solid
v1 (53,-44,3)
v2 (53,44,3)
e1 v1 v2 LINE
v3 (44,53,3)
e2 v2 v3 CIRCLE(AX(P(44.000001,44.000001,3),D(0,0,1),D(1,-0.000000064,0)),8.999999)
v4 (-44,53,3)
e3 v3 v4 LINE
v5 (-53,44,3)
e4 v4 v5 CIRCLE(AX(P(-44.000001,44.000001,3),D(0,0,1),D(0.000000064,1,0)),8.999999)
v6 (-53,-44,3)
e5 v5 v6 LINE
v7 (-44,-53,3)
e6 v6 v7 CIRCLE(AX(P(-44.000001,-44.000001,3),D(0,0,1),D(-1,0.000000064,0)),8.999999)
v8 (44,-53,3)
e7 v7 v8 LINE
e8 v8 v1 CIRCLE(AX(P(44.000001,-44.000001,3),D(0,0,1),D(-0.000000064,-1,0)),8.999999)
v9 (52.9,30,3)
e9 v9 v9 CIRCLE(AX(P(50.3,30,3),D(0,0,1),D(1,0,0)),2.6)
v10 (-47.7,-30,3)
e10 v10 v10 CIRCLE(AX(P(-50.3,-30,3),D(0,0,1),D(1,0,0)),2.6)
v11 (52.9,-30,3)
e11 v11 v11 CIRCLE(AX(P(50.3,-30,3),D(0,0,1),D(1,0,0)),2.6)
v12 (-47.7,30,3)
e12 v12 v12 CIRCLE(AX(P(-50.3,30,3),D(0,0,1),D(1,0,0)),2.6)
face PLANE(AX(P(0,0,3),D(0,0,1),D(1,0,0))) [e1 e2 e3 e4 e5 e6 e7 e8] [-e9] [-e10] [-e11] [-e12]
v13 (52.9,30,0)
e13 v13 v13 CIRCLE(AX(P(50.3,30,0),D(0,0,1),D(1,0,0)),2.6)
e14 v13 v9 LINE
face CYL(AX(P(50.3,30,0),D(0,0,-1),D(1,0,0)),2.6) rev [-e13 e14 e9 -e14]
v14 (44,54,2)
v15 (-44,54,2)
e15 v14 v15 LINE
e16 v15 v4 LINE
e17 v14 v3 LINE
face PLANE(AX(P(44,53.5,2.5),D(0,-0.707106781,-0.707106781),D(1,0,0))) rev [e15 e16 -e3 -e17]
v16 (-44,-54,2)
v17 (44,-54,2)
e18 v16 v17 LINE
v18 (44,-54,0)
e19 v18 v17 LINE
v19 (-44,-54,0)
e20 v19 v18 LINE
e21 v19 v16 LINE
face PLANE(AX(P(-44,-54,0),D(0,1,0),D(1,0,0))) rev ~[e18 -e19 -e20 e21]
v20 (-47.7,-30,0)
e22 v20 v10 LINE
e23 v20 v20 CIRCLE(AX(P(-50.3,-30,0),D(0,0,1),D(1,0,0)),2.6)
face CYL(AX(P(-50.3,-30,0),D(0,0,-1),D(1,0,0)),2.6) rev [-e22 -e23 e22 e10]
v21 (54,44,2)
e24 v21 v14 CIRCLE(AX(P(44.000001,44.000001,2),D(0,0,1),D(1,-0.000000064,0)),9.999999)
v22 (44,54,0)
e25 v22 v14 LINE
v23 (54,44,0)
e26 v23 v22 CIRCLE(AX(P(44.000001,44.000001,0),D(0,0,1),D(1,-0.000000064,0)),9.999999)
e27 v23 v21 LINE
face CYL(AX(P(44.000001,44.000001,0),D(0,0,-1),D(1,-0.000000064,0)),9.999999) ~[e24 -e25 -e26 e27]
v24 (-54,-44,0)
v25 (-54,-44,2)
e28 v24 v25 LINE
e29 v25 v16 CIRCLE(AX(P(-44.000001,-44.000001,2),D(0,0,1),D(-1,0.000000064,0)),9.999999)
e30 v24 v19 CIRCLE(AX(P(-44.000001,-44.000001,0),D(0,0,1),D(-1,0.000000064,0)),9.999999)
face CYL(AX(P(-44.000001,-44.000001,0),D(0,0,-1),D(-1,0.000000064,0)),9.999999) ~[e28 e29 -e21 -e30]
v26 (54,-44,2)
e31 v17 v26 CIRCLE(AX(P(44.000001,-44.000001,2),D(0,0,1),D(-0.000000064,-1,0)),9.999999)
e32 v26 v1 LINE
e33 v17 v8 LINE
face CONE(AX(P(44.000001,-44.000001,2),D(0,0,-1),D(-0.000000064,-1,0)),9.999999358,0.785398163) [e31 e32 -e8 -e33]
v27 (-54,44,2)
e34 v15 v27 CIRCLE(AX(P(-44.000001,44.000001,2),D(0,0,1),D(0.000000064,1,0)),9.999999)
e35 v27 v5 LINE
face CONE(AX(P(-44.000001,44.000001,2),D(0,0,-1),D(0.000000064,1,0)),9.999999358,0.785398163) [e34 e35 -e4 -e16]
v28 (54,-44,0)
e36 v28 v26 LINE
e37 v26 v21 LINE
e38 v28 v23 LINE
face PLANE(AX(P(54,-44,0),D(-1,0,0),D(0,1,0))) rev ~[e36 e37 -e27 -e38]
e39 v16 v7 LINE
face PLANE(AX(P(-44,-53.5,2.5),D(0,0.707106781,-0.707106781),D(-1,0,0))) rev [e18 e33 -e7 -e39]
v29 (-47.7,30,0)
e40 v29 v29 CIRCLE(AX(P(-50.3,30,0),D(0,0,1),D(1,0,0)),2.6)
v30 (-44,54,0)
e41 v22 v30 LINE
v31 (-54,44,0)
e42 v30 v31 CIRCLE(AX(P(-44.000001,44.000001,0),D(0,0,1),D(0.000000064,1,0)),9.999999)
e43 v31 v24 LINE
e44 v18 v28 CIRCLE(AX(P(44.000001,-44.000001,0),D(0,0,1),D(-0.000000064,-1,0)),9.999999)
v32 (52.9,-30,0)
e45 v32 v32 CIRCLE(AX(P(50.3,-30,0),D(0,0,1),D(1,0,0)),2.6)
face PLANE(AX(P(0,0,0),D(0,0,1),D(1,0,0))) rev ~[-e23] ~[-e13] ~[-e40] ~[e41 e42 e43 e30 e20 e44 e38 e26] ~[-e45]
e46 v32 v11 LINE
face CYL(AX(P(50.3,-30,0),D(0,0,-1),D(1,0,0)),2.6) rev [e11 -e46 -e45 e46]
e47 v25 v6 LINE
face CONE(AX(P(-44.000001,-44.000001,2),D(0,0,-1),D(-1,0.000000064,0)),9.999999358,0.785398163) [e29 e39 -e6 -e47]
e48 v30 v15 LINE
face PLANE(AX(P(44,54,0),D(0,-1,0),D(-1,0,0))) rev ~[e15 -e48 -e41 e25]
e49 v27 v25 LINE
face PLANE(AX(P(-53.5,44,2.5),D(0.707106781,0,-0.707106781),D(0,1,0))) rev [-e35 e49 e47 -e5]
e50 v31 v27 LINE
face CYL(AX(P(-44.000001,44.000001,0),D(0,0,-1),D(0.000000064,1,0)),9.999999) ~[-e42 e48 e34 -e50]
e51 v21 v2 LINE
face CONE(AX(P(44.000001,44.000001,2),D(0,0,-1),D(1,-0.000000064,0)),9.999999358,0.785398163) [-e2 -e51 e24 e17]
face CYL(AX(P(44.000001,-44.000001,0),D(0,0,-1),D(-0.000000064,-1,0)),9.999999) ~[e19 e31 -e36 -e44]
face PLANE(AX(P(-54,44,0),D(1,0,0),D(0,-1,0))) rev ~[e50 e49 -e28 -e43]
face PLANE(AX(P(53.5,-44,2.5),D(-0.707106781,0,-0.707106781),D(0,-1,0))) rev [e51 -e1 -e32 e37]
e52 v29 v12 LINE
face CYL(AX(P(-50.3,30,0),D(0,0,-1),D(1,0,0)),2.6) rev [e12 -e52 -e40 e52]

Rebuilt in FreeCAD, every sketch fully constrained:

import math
import FreeCAD as App
import Part
import Sketcher


def edges_at(feature, points):
    """Names of the edges that pass closest to the given points."""
    edges = feature.Shape.Edges
    near = lambda p: min(range(len(edges)), key=lambda i: edges[i].distToShape(Part.Vertex(*p))[0])
    return sorted({f"Edge{near(p) + 1}" for p in points})

doc = App.newDocument("Part")
params = doc.addObject("Spreadsheet::Sheet", "Params")
for row, (alias, value) in enumerate([
    ("sketch1_radius", "9.999999 mm"),
    ("sketch1_diameter", "5.2 mm"),
    ("sketch1_width", "88 mm"),
    ("pad1_length", "3 mm"),
    ("chamfer_size", "1 mm"),
], start=1):
    params.set(f"A{row}", alias)
    params.set(f"B{row}", "=" + value)
    params.setAlias(f"B{row}", alias)

body = doc.addObject("PartDesign::Body", "Body")

# Sketch on XY plane
sketch1 = body.newObject("Sketcher::SketchObject", "Sketch")
sketch1.AttachmentSupport = (doc.getObject("XY_Plane"), [""])
sketch1.MapMode = "FlatFace"
sketch1.addGeometry([
    Part.LineSegment(App.Vector(-44, -54, 0), App.Vector(44, -54, 0)),  # 0
    Part.ArcOfCircle(Part.Circle(App.Vector(44.000001, -44.000001, 0), App.Vector(0, 0, 1), 9.999999), math.radians(-90.000004), math.radians(0.000004)),  # 1
    Part.LineSegment(App.Vector(54, -44, 0), App.Vector(54, 44, 0)),  # 2
    Part.ArcOfCircle(Part.Circle(App.Vector(44.000001, 44.000001, 0), App.Vector(0, 0, 1), 9.999999), math.radians(-0.000004), math.radians(90.000004)),  # 3
    Part.LineSegment(App.Vector(44, 54, 0), App.Vector(-44, 54, 0)),  # 4
    Part.ArcOfCircle(Part.Circle(App.Vector(-44.000001, 44.000001, 0), App.Vector(0, 0, 1), 9.999999), math.radians(89.999996), math.radians(180.000004)),  # 5
    Part.LineSegment(App.Vector(-54, 44, 0), App.Vector(-54, -44, 0)),  # 6
    Part.ArcOfCircle(Part.Circle(App.Vector(-44.000001, -44.000001, 0), App.Vector(0, 0, 1), 9.999999), math.radians(179.999996), math.radians(270.000004)),  # 7
    Part.Circle(App.Vector(-50.3, -30, 0), App.Vector(0, 0, 1), 2.6),  # 8
    Part.Circle(App.Vector(50.3, -30, 0), App.Vector(0, 0, 1), 2.6),  # 9
    Part.Circle(App.Vector(-50.3, 30, 0), App.Vector(0, 0, 1), 2.6),  # 10
    Part.Circle(App.Vector(50.3, 30, 0), App.Vector(0, 0, 1), 2.6),  # 11
], False)
sketch1.addConstraint([
    Sketcher.Constraint("Tangent", 0, 2, 1, 1),
    Sketcher.Constraint("Tangent", 1, 2, 2, 1),
    Sketcher.Constraint("Tangent", 2, 2, 3, 1),
    Sketcher.Constraint("Tangent", 3, 2, 4, 1),
    Sketcher.Constraint("Tangent", 4, 2, 5, 1),
    Sketcher.Constraint("Tangent", 5, 2, 6, 1),
    Sketcher.Constraint("Tangent", 6, 2, 7, 1),
    Sketcher.Constraint("Tangent", 7, 2, 0, 1),
    Sketcher.Constraint("Horizontal", 0),
    Sketcher.Constraint("Vertical", 2),
    Sketcher.Constraint("Horizontal", 4),
    Sketcher.Constraint("Vertical", 6),
    Sketcher.Constraint("Equal", 1, 3),
    Sketcher.Constraint("Equal", 3, 5),
    Sketcher.Constraint("Equal", 5, 7),
    Sketcher.Constraint("Equal", 8, 9),
    Sketcher.Constraint("Equal", 9, 10),
    Sketcher.Constraint("Equal", 10, 11),
    Sketcher.Constraint("Symmetric", 1, 3, 5, 3, -1, 1),
    Sketcher.Constraint("Symmetric", 9, 3, 10, 3, -1, 1),
    Sketcher.Constraint("Symmetric", 8, 3, 11, 3, -1, 1),
    Sketcher.Constraint("Symmetric", 8, 3, 9, 3, -2),
    Sketcher.Constraint("Equal", 4, 2),
    Sketcher.Constraint("Radius", 1, 9.999999),
    Sketcher.Constraint("Diameter", 8, 5.2),
    Sketcher.Constraint("DistanceX", 0, 1, 0, 2, 88.0),
    Sketcher.Constraint("DistanceY", 8, 3, -1, 1, 30.0),
    Sketcher.Constraint("DistanceX", 8, 3, -1, 1, 50.3),
])
sketch1.setExpression("Constraints[23]", "Params.sketch1_radius")
sketch1.setExpression("Constraints[24]", "Params.sketch1_diameter")
sketch1.setExpression("Constraints[25]", "Params.sketch1_width")
pad1 = body.newObject("PartDesign::Pad", "Pad")
pad1.Profile = sketch1
pad1.setExpression("Length", "Params.pad1_length")
doc.recompute()

chamfer = body.newObject("PartDesign::Chamfer", "Chamfer")
chamfer.Base = (pad1, edges_at(pad1, [(0, 54, 3)]))
chamfer.setExpression("Size", "Params.chamfer_size")

doc.recompute()
